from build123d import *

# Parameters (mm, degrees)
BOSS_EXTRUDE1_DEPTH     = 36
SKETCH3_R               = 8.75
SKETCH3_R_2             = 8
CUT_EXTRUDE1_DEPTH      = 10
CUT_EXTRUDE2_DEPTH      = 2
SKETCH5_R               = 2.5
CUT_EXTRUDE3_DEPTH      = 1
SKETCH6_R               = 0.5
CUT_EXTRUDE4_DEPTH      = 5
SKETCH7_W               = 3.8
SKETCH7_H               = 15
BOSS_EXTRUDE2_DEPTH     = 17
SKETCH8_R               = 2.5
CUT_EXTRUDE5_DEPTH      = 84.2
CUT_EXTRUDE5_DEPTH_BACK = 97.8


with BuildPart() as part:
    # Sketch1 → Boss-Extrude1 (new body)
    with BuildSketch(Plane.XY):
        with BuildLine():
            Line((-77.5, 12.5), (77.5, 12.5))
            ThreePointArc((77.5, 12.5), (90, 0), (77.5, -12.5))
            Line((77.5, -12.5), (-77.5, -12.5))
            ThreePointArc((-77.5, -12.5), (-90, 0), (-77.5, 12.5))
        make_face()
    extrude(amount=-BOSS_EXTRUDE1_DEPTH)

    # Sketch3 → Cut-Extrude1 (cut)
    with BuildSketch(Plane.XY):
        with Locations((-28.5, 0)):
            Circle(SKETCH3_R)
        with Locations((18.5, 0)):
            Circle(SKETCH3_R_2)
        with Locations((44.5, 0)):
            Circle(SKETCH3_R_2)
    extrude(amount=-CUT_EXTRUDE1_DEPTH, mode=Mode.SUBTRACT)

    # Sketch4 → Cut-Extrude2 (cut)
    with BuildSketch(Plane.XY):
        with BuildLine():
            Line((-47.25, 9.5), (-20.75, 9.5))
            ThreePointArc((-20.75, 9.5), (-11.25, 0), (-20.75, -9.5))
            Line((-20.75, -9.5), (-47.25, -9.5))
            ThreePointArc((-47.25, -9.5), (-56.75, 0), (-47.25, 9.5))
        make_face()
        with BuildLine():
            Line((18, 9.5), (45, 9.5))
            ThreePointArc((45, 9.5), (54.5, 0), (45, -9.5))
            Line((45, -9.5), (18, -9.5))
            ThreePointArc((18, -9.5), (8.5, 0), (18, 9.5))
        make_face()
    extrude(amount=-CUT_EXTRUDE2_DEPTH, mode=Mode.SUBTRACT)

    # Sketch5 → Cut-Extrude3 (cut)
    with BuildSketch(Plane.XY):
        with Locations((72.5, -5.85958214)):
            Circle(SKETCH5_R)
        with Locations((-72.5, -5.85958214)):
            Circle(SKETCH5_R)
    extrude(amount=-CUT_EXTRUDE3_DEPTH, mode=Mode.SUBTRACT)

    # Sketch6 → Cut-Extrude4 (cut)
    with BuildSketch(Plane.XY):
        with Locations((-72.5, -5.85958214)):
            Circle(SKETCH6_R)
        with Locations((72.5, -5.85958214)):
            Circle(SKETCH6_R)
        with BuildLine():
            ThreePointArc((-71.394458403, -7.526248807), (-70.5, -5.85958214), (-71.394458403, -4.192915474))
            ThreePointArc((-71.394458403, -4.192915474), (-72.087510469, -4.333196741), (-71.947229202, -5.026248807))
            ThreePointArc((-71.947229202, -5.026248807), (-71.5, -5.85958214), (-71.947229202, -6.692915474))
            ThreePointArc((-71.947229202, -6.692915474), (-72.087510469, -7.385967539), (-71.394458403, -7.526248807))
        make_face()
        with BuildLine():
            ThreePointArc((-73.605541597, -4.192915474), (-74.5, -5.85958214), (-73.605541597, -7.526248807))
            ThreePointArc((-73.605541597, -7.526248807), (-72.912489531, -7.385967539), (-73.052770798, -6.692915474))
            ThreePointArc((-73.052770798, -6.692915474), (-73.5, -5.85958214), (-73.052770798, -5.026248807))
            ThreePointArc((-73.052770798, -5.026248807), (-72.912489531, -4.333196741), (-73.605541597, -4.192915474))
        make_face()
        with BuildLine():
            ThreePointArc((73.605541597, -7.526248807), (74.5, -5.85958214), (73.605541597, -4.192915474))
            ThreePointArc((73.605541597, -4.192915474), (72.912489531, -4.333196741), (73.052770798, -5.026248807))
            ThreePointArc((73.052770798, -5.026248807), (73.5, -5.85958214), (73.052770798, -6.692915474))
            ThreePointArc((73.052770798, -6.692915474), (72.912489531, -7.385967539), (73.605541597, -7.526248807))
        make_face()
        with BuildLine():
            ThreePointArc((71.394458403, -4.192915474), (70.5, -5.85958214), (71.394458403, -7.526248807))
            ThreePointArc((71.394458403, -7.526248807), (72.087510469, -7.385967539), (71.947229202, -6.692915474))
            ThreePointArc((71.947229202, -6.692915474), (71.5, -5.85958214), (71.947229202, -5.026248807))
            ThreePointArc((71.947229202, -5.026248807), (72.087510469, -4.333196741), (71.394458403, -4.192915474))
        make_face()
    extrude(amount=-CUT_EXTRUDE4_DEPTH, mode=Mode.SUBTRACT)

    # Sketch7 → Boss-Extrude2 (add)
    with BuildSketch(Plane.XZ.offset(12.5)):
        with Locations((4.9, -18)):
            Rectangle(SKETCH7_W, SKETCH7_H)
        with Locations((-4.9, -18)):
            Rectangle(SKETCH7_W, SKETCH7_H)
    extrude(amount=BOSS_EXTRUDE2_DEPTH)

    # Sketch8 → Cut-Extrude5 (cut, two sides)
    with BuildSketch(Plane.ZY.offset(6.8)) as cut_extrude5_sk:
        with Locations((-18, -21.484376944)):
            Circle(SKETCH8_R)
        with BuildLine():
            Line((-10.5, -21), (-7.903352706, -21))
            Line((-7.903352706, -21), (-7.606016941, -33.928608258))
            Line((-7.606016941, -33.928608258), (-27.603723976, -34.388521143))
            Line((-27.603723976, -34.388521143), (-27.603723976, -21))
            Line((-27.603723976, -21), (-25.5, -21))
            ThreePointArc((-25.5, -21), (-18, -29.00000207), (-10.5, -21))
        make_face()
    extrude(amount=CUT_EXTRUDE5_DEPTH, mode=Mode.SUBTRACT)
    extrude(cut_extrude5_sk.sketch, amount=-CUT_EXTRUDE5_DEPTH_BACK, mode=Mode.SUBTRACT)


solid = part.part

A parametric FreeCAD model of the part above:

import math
import FreeCAD as App
import Part
import Sketcher

V = App.Vector
Q = App.Units.Quantity


def add_polygon(sketch, points):
    """Adds a closed chain of lines whose ends are joined by coincident constraints."""
    first, n = sketch.GeometryCount, len(points)
    for a, b in zip(points, points[1:] + points[:1]):
        sketch.addGeometry(Part.LineSegment(App.Vector(*a, 0), App.Vector(*b, 0)), False)
    for i in range(n):
        sketch.addConstraint(Sketcher.Constraint("Coincident", first + i, 2, first + (i + 1) % n, 1))

doc = App.newDocument("Part")
body = doc.addObject("PartDesign::Body", "Body")

# Sketch on XY plane
sketch1 = doc.addObject("Sketcher::SketchObject", "Sketch")
body.addObject(sketch1)
sketch1.AttachmentSupport = (doc.XY_Plane, [""])
sketch1.MapMode = "FlatFace"
sketch1.addGeometry([
    Part.LineSegment(V(78, 12, 0), V(-78, 12, 0)),
    Part.ArcOfCircle(Part.Circle(V(-78, 0, 0), V(0, 0, 1), 12), math.radians(90), math.radians(270)),
    Part.LineSegment(V(-78, -12, 0), V(78, -12, 0)),
    Part.ArcOfCircle(Part.Circle(V(78, 0, 0), V(0, 0, 1), 12), math.radians(-90), math.radians(90)),
], False)
sketch1.addConstraint([
    Sketcher.Constraint("Tangent", 0, 2, 1, 1),
    Sketcher.Constraint("Tangent", 1, 2, 2, 1),
    Sketcher.Constraint("Tangent", 2, 2, 3, 1),
    Sketcher.Constraint("Tangent", 3, 2, 0, 1),
    Sketcher.Constraint("Horizontal", 0),
    Sketcher.Constraint("Horizontal", 2),
    Sketcher.Constraint("Symmetric", 1, 3, 3, 3, -1, 1),
    Sketcher.Constraint("Radius", 1, Q("12.5 mm")),
    Sketcher.Constraint("DistanceX", 0, 2, 0, 1, Q("155 mm")),
])
pad1 = doc.addObject("PartDesign::Pad", "Pad")
body.addObject(pad1)
pad1.Profile = sketch1
pad1.Length = 36
pad1.Reversed = True

# Sketch on XY plane
sketch2 = doc.addObject("Sketcher::SketchObject", "Sketch001")
body.addObject(sketch2)
sketch2.AttachmentSupport = (doc.XY_Plane, [""])
sketch2.MapMode = "FlatFace"
sketch2.addGeometry([
    Part.Circle(V(-28, 0, 0), V(0, 0, 1), 9),
    Part.Circle(V(18, 0, 0), V(0, 0, 1), 8),
    Part.Circle(V(44, 0, 0), V(0, 0, 1), 8),
], False)
sketch2.addConstraint([
    Sketcher.Constraint("Equal", 1, 2),
    Sketcher.Constraint("PointOnObject", 0, 3, -1),
    Sketcher.Constraint("PointOnObject", 1, 3, -1),
    Sketcher.Constraint("PointOnObject", 2, 3, -1),
    Sketcher.Constraint("Diameter", 1, Q("16 mm")),
    Sketcher.Constraint("Diameter", 0, Q("17.5 mm")),
    Sketcher.Constraint("DistanceX", 0, 3, 1, 3, Q("47 mm")),
    Sketcher.Constraint("DistanceX", 1, 3, 2, 3, Q("26 mm")),
    Sketcher.Constraint("DistanceX", 0, 3, -1, 1, Q("28.5 mm")),
])
pocket1 = doc.addObject("PartDesign::Pocket", "Pocket")
body.addObject(pocket1)
pocket1.Profile = sketch2
pocket1.Length = 10

# Sketch on XY plane
sketch3 = doc.addObject("Sketcher::SketchObject", "Sketch002")
body.addObject(sketch3)
sketch3.AttachmentSupport = (doc.XY_Plane, [""])
sketch3.MapMode = "FlatFace"
sketch3.addGeometry([
    Part.LineSegment(V(-21, 10, 0), V(-47, 10, 0)),  # 0
    Part.ArcOfCircle(Part.Circle(V(-47, 0, 0), V(0, 0, 1), 10), math.radians(90), math.radians(270)),  # 1
    Part.LineSegment(V(-47, -10, 0), V(-21, -10, 0)),  # 2
    Part.ArcOfCircle(Part.Circle(V(-21, 0, 0), V(0, 0, 1), 10), math.radians(-90), math.radians(90)),  # 3
    Part.LineSegment(V(45, 10, 0), V(18, 10, 0)),  # 4
    Part.ArcOfCircle(Part.Circle(V(18, 0, 0), V(0, 0, 1), 10), math.radians(90), math.radians(270)),  # 5
    Part.LineSegment(V(18, -10, 0), V(45, -10, 0)),  # 6
    Part.ArcOfCircle(Part.Circle(V(45, 0, 0), V(0, 0, 1), 10), math.radians(-90), math.radians(90)),  # 7
], False)
sketch3.addConstraint([
    Sketcher.Constraint("Tangent", 0, 2, 1, 1),
    Sketcher.Constraint("Tangent", 1, 2, 2, 1),
    Sketcher.Constraint("Tangent", 2, 2, 3, 1),
    Sketcher.Constraint("Tangent", 3, 2, 0, 1),
    Sketcher.Constraint("Tangent", 4, 2, 5, 1),
    Sketcher.Constraint("Tangent", 5, 2, 6, 1),
    Sketcher.Constraint("Tangent", 6, 2, 7, 1),
    Sketcher.Constraint("Tangent", 7, 2, 4, 1),
    Sketcher.Constraint("Horizontal", 0),
    Sketcher.Constraint("Horizontal", 2),
    Sketcher.Constraint("Horizontal", 4),
    Sketcher.Constraint("Horizontal", 6),
    Sketcher.Constraint("Equal", 3, 5),
    Sketcher.Constraint("PointOnObject", 1, 3, -1),
    Sketcher.Constraint("PointOnObject", 5, 3, -1),
    Sketcher.Constraint("Radius", 1, Q("9.5 mm")),
    Sketcher.Constraint("DistanceX", 4, 2, 4, 1, Q("27 mm")),
    Sketcher.Constraint("DistanceX", 0, 2, 0, 1, Q("26.5 mm")),
    Sketcher.Constraint("DistanceX", -1, 1, 5, 3, Q("18 mm")),
    Sketcher.Constraint("DistanceX", 1, 3, -1, 1, Q("47.25 mm")),
])
pocket2 = doc.addObject("PartDesign::Pocket", "Pocket001")
body.addObject(pocket2)
pocket2.Profile = sketch3
pocket2.Length = 2

# Sketch on XY plane
sketch4 = doc.addObject("Sketcher::SketchObject", "Sketch003")
body.addObject(sketch4)
sketch4.AttachmentSupport = (doc.XY_Plane, [""])
sketch4.MapMode = "FlatFace"
sketch4.addGeometry([
    Part.Circle(V(72.5, -5.9, 0), V(0, 0, 1), 2.5),
    Part.Circle(V(-72.5, -5.9, 0), V(0, 0, 1), 2.5),
], False)
sketch4.addConstraint([
    Sketcher.Constraint("Equal", 0, 1),
    Sketcher.Constraint("Symmetric", 0, 3, 1, 3, -2),
    Sketcher.Constraint("Diameter", 0, Q("5 mm")),
    Sketcher.Constraint("DistanceX", 1, 3, 0, 3, Q("145 mm")),
    Sketcher.Constraint("DistanceY", 0, 3, -1, 1, Q("5.859582 mm")),
])
pocket3 = doc.addObject("PartDesign::Pocket", "Pocket002")
body.addObject(pocket3)
pocket3.Profile = sketch4
pocket3.Length = 1

# Sketch on XY plane
sketch5 = doc.addObject("Sketcher::SketchObject", "Sketch004")
body.addObject(sketch5)
sketch5.AttachmentSupport = (doc.XY_Plane, [""])
sketch5.MapMode = "FlatFace"
sketch5.addGeometry([
    Part.Circle(V(-72.5, -5.9, 0), V(0, 0, 1), 0.5),  # 0
    Part.Circle(V(72.5, -5.9, 0), V(0, 0, 1), 0.5),  # 1
    Part.ArcOfCircle(Part.Circle(V(-72.5, -5.9, 0), V(0, 0, 1), 2), math.radians(-56), math.radians(56)),  # 2
    Part.ArcOfCircle(Part.Circle(V(-71.7, -4.6, 0), V(0, 0, 1), 0.5), math.radians(56), math.radians(236)),  # 3
    Part.ArcOfCircle(Part.Circle(V(-72.5, -5.9, 0), V(0, 0, 1), 1), math.radians(-56), math.radians(56)),  # 4
    Part.ArcOfCircle(Part.Circle(V(-71.7, -7.1, 0), V(0, 0, 1), 0.5), math.radians(124), math.radians(304)),  # 5
    Part.ArcOfCircle(Part.Circle(V(-72.5, -5.9, 0), V(0, 0, 1), 2), math.radians(124), math.radians(236)),  # 6
    Part.ArcOfCircle(Part.Circle(V(-73.3, -7.1, 0), V(0, 0, 1), 0.5), math.radians(-124), math.radians(56)),  # 7
    Part.ArcOfCircle(Part.Circle(V(-72.5, -5.9, 0), V(0, 0, 1), 1), math.radians(124), math.radians(236)),  # 8
    Part.ArcOfCircle(Part.Circle(V(-73.3, -4.6, 0), V(0, 0, 1), 0.5), math.radians(-56), math.radians(124)),  # 9
    Part.ArcOfCircle(Part.Circle(V(72.5, -5.9, 0), V(0, 0, 1), 2), math.radians(-56), math.radians(56)),  # 10
    Part.ArcOfCircle(Part.Circle(V(73.3, -4.6, 0), V(0, 0, 1), 0.5), math.radians(56), math.radians(236)),  # 11
    Part.ArcOfCircle(Part.Circle(V(72.5, -5.9, 0), V(0, 0, 1), 1), math.radians(-56), math.radians(56)),  # 12
    Part.ArcOfCircle(Part.Circle(V(73.3, -7.1, 0), V(0, 0, 1), 0.5), math.radians(124), math.radians(304)),  # 13
    Part.ArcOfCircle(Part.Circle(V(72.5, -5.9, 0), V(0, 0, 1), 2), math.radians(124), math.radians(236)),  # 14
    Part.ArcOfCircle(Part.Circle(V(71.7, -7.1, 0), V(0, 0, 1), 0.5), math.radians(-124), math.radians(56)),  # 15
    Part.ArcOfCircle(Part.Circle(V(72.5, -5.9, 0), V(0, 0, 1), 1), math.radians(124), math.radians(236)),  # 16
    Part.ArcOfCircle(Part.Circle(V(71.7, -4.6, 0), V(0, 0, 1), 0.5), math.radians(-56), math.radians(124)),  # 17
], False)
sketch5.addConstraint([
    Sketcher.Constraint("Tangent", 2, 2, 3, 1),
    Sketcher.Constraint("Tangent", 3, 2, 4, 2),
    Sketcher.Constraint("Tangent", 4, 1, 5, 1),
    Sketcher.Constraint("Tangent", 5, 2, 2, 1),
    Sketcher.Constraint("Tangent", 6, 2, 7, 1),
    Sketcher.Constraint("Tangent", 7, 2, 8, 2),
    Sketcher.Constraint("Tangent", 8, 1, 9, 1),
    Sketcher.Constraint("Tangent", 9, 2, 6, 1),
    Sketcher.Constraint("Tangent", 10, 2, 11, 1),
    Sketcher.Constraint("Tangent", 11, 2, 12, 2),
    Sketcher.Constraint("Tangent", 12, 1, 13, 1),
    Sketcher.Constraint("Tangent", 13, 2, 10, 1),
    Sketcher.Constraint("Tangent", 14, 2, 15, 1),
    Sketcher.Constraint("Tangent", 15, 2, 16, 2),
    Sketcher.Constraint("Tangent", 16, 1, 17, 1),
    Sketcher.Constraint("Tangent", 17, 2, 14, 1),
    Sketcher.Constraint("Coincident", 2, 3, 0, 3),
    Sketcher.Constraint("Coincident", 4, 3, 0, 3),
    Sketcher.Constraint("Coincident", 6, 3, 0, 3),
    Sketcher.Constraint("Coincident", 8, 3, 0, 3),
    Sketcher.Constraint("Coincident", 10, 3, 1, 3),
    Sketcher.Constraint("Coincident", 12, 3, 1, 3),
    Sketcher.Constraint("Coincident", 14, 3, 1, 3),
    Sketcher.Constraint("Coincident", 16, 3, 1, 3),
    Sketcher.Constraint("Equal", 0, 1),
    Sketcher.Constraint("Equal", 1, 3),
    Sketcher.Constraint("Equal", 2, 6),
    Sketcher.Constraint("Equal", 5, 7),
    Sketcher.Constraint("Equal", 6, 10),
    Sketcher.Constraint("Equal", 9, 11),
    Sketcher.Constraint("Equal", 10, 14),
    Sketcher.Constraint("Equal", 13, 15),
    Sketcher.Constraint("Symmetric", 0, 3, 1, 3, -2),
    Sketcher.Constraint("Horizontal", 5, 3, 7, 3),
    Sketcher.Constraint("Horizontal", 3, 3, 9, 3),
    Sketcher.Constraint("Horizontal", 9, 3, 11, 3),
    Sketcher.Constraint("Horizontal", 7, 3, 13, 3),
    Sketcher.Constraint("Horizontal", 13, 3, 15, 3),
    Sketcher.Constraint("Horizontal", 11, 3, 17, 3),
    Sketcher.Constraint("Vertical", 3, 3, 5, 3),
    Sketcher.Constraint("Diameter", 0, Q("1 mm")),
    Sketcher.Constraint("Radius", 2, Q("2 mm")),
    Sketcher.Constraint("DistanceX", 0, 3, 1, 3, Q("145 mm")),
    Sketcher.Constraint("DistanceY", 5, 3, 3, 3, Q("2.5 mm")),
    Sketcher.Constraint("DistanceY", 3, 2, -1, 1, Q("5.026249 mm")),
])
pocket4 = doc.addObject("PartDesign::Pocket", "Pocket003")
body.addObject(pocket4)
pocket4.Profile = sketch5
pocket4.Length = 5

# Sketch on XZ plane
sketch6 = doc.addObject("Sketcher::SketchObject", "Sketch005")
body.addObject(sketch6)
sketch6.AttachmentSupport = (doc.XZ_Plane, [""])
sketch6.MapMode = "FlatFace"
sketch6.AttachmentOffset = App.Placement(V(0, 0, 12.5), App.Rotation())
add_polygon(sketch6, [(3, -10.5), (3, -25.5), (6.8, -25.5), (6.8, -10.5)])  # lines 0-3
add_polygon(sketch6, [(-6.8, -10.5), (-6.8, -25.5), (-3, -25.5), (-3, -10.5)])  # lines 4-7
sketch6.addConstraint([
    Sketcher.Constraint("Vertical", 0),
    Sketcher.Constraint("Horizontal", 1),
    Sketcher.Constraint("Vertical", 2),
    Sketcher.Constraint("Horizontal", 3),
    Sketcher.Constraint("Vertical", 4),
    Sketcher.Constraint("Horizontal", 5),
    Sketcher.Constraint("Vertical", 6),
    Sketcher.Constraint("Horizontal", 7),
    Sketcher.Constraint("Symmetric", 1, 2, 4, 2, -2),
    Sketcher.Constraint("Symmetric", 3, 2, 6, 2, -2),
    Sketcher.Constraint("DistanceY", 0, 2, 0, 1, Q("15 mm")),
    Sketcher.Constraint("DistanceX", 1, 1, 1, 2, Q("3.8 mm")),
    Sketcher.Constraint("DistanceX", -1, 1, 0, 2, Q("3 mm")),
    Sketcher.Constraint("DistanceY", 0, 2, -1, 1, Q("25.5 mm")),
])
pad2 = doc.addObject("PartDesign::Pad", "Pad001")
body.addObject(pad2)
pad2.Profile = sketch6
pad2.Length = 17

# Sketch on YZ plane
sketch7 = doc.addObject("Sketcher::SketchObject", "Sketch006")
body.addObject(sketch7)
sketch7.AttachmentSupport = (doc.YZ_Plane, [""])
sketch7.MapMode = "FlatFace"
sketch7.AttachmentOffset = App.Placement(V(0, 0, -6.8), App.Rotation())
sketch7.addGeometry([
    Part.Circle(V(-21.5, -18, 0), V(0, 0, 1), 2.5),  # 0
    Part.LineSegment(V(-21, -7.9, 0), V(-21, -10.5, 0)),  # 1
    Part.ArcOfCircle(Part.Circle(V(-21.5, -18, 0), V(0, 0, 1), 7.5), math.radians(86), math.radians(274)),  # 2
    Part.LineSegment(V(-21, -25.5, 0), V(-21, -27.6, 0)),  # 3
    Part.LineSegment(V(-21, -27.6, 0), V(-34.4, -27.6, 0)),  # 4
    Part.LineSegment(V(-34.4, -27.6, 0), V(-33.9, -7.6, 0)),  # 5
    Part.LineSegment(V(-33.9, -7.6, 0), V(-21, -7.9, 0)),  # 6
], False)
sketch7.addConstraint([
    Sketcher.Constraint("Coincident", 1, 2, 2, 1),
    Sketcher.Constraint("Coincident", 2, 2, 3, 1),
    Sketcher.Constraint("Coincident", 3, 2, 4, 1),
    Sketcher.Constraint("Coincident", 4, 2, 5, 1),
    Sketcher.Constraint("Coincident", 5, 2, 6, 1),
    Sketcher.Constraint("Coincident", 6, 2, 1, 1),
    Sketcher.Constraint("Vertical", 1),
    Sketcher.Constraint("Vertical", 3),
    Sketcher.Constraint("Horizontal", 4),
    Sketcher.Constraint("Coincident", 2, 3, 0, 3),
    Sketcher.Constraint("Perpendicular", 5, 6),
    Sketcher.Constraint("Vertical", 1, 2, 2, 2),
    Sketcher.Constraint("Diameter", 0, Q("5 mm")),
    Sketcher.Constraint("DistanceY", 0, 3, -1, 1, Q("18 mm")),
    Sketcher.Constraint("DistanceX", 1, 2, -1, 1, Q("21 mm")),
    Sketcher.Constraint("DistanceY", 2, 2, 1, 2, Q("15 mm")),
    Sketcher.Constraint("Radius", 2, Q("7.515625 mm")),
    Sketcher.Constraint("DistanceX", 4, 2, 4, 1, Q("13.388521 mm")),
    Sketcher.Constraint("DistanceY", 1, 2, 1, 1, Q("2.596647 mm")),
    Sketcher.Constraint("DistanceY", 3, 2, 3, 1, Q("2.103724 mm")),
    Sketcher.Constraint("DistanceX", 5, 2, -1, 1, Q("33.928608 mm")),
])
pocket5 = doc.addObject("PartDesign::Pocket", "Pocket004")
body.addObject(pocket5)
pocket5.Profile = sketch7
pocket5.Type = "ThroughAll"
pocket5.Midplane = True

doc.recompute()
